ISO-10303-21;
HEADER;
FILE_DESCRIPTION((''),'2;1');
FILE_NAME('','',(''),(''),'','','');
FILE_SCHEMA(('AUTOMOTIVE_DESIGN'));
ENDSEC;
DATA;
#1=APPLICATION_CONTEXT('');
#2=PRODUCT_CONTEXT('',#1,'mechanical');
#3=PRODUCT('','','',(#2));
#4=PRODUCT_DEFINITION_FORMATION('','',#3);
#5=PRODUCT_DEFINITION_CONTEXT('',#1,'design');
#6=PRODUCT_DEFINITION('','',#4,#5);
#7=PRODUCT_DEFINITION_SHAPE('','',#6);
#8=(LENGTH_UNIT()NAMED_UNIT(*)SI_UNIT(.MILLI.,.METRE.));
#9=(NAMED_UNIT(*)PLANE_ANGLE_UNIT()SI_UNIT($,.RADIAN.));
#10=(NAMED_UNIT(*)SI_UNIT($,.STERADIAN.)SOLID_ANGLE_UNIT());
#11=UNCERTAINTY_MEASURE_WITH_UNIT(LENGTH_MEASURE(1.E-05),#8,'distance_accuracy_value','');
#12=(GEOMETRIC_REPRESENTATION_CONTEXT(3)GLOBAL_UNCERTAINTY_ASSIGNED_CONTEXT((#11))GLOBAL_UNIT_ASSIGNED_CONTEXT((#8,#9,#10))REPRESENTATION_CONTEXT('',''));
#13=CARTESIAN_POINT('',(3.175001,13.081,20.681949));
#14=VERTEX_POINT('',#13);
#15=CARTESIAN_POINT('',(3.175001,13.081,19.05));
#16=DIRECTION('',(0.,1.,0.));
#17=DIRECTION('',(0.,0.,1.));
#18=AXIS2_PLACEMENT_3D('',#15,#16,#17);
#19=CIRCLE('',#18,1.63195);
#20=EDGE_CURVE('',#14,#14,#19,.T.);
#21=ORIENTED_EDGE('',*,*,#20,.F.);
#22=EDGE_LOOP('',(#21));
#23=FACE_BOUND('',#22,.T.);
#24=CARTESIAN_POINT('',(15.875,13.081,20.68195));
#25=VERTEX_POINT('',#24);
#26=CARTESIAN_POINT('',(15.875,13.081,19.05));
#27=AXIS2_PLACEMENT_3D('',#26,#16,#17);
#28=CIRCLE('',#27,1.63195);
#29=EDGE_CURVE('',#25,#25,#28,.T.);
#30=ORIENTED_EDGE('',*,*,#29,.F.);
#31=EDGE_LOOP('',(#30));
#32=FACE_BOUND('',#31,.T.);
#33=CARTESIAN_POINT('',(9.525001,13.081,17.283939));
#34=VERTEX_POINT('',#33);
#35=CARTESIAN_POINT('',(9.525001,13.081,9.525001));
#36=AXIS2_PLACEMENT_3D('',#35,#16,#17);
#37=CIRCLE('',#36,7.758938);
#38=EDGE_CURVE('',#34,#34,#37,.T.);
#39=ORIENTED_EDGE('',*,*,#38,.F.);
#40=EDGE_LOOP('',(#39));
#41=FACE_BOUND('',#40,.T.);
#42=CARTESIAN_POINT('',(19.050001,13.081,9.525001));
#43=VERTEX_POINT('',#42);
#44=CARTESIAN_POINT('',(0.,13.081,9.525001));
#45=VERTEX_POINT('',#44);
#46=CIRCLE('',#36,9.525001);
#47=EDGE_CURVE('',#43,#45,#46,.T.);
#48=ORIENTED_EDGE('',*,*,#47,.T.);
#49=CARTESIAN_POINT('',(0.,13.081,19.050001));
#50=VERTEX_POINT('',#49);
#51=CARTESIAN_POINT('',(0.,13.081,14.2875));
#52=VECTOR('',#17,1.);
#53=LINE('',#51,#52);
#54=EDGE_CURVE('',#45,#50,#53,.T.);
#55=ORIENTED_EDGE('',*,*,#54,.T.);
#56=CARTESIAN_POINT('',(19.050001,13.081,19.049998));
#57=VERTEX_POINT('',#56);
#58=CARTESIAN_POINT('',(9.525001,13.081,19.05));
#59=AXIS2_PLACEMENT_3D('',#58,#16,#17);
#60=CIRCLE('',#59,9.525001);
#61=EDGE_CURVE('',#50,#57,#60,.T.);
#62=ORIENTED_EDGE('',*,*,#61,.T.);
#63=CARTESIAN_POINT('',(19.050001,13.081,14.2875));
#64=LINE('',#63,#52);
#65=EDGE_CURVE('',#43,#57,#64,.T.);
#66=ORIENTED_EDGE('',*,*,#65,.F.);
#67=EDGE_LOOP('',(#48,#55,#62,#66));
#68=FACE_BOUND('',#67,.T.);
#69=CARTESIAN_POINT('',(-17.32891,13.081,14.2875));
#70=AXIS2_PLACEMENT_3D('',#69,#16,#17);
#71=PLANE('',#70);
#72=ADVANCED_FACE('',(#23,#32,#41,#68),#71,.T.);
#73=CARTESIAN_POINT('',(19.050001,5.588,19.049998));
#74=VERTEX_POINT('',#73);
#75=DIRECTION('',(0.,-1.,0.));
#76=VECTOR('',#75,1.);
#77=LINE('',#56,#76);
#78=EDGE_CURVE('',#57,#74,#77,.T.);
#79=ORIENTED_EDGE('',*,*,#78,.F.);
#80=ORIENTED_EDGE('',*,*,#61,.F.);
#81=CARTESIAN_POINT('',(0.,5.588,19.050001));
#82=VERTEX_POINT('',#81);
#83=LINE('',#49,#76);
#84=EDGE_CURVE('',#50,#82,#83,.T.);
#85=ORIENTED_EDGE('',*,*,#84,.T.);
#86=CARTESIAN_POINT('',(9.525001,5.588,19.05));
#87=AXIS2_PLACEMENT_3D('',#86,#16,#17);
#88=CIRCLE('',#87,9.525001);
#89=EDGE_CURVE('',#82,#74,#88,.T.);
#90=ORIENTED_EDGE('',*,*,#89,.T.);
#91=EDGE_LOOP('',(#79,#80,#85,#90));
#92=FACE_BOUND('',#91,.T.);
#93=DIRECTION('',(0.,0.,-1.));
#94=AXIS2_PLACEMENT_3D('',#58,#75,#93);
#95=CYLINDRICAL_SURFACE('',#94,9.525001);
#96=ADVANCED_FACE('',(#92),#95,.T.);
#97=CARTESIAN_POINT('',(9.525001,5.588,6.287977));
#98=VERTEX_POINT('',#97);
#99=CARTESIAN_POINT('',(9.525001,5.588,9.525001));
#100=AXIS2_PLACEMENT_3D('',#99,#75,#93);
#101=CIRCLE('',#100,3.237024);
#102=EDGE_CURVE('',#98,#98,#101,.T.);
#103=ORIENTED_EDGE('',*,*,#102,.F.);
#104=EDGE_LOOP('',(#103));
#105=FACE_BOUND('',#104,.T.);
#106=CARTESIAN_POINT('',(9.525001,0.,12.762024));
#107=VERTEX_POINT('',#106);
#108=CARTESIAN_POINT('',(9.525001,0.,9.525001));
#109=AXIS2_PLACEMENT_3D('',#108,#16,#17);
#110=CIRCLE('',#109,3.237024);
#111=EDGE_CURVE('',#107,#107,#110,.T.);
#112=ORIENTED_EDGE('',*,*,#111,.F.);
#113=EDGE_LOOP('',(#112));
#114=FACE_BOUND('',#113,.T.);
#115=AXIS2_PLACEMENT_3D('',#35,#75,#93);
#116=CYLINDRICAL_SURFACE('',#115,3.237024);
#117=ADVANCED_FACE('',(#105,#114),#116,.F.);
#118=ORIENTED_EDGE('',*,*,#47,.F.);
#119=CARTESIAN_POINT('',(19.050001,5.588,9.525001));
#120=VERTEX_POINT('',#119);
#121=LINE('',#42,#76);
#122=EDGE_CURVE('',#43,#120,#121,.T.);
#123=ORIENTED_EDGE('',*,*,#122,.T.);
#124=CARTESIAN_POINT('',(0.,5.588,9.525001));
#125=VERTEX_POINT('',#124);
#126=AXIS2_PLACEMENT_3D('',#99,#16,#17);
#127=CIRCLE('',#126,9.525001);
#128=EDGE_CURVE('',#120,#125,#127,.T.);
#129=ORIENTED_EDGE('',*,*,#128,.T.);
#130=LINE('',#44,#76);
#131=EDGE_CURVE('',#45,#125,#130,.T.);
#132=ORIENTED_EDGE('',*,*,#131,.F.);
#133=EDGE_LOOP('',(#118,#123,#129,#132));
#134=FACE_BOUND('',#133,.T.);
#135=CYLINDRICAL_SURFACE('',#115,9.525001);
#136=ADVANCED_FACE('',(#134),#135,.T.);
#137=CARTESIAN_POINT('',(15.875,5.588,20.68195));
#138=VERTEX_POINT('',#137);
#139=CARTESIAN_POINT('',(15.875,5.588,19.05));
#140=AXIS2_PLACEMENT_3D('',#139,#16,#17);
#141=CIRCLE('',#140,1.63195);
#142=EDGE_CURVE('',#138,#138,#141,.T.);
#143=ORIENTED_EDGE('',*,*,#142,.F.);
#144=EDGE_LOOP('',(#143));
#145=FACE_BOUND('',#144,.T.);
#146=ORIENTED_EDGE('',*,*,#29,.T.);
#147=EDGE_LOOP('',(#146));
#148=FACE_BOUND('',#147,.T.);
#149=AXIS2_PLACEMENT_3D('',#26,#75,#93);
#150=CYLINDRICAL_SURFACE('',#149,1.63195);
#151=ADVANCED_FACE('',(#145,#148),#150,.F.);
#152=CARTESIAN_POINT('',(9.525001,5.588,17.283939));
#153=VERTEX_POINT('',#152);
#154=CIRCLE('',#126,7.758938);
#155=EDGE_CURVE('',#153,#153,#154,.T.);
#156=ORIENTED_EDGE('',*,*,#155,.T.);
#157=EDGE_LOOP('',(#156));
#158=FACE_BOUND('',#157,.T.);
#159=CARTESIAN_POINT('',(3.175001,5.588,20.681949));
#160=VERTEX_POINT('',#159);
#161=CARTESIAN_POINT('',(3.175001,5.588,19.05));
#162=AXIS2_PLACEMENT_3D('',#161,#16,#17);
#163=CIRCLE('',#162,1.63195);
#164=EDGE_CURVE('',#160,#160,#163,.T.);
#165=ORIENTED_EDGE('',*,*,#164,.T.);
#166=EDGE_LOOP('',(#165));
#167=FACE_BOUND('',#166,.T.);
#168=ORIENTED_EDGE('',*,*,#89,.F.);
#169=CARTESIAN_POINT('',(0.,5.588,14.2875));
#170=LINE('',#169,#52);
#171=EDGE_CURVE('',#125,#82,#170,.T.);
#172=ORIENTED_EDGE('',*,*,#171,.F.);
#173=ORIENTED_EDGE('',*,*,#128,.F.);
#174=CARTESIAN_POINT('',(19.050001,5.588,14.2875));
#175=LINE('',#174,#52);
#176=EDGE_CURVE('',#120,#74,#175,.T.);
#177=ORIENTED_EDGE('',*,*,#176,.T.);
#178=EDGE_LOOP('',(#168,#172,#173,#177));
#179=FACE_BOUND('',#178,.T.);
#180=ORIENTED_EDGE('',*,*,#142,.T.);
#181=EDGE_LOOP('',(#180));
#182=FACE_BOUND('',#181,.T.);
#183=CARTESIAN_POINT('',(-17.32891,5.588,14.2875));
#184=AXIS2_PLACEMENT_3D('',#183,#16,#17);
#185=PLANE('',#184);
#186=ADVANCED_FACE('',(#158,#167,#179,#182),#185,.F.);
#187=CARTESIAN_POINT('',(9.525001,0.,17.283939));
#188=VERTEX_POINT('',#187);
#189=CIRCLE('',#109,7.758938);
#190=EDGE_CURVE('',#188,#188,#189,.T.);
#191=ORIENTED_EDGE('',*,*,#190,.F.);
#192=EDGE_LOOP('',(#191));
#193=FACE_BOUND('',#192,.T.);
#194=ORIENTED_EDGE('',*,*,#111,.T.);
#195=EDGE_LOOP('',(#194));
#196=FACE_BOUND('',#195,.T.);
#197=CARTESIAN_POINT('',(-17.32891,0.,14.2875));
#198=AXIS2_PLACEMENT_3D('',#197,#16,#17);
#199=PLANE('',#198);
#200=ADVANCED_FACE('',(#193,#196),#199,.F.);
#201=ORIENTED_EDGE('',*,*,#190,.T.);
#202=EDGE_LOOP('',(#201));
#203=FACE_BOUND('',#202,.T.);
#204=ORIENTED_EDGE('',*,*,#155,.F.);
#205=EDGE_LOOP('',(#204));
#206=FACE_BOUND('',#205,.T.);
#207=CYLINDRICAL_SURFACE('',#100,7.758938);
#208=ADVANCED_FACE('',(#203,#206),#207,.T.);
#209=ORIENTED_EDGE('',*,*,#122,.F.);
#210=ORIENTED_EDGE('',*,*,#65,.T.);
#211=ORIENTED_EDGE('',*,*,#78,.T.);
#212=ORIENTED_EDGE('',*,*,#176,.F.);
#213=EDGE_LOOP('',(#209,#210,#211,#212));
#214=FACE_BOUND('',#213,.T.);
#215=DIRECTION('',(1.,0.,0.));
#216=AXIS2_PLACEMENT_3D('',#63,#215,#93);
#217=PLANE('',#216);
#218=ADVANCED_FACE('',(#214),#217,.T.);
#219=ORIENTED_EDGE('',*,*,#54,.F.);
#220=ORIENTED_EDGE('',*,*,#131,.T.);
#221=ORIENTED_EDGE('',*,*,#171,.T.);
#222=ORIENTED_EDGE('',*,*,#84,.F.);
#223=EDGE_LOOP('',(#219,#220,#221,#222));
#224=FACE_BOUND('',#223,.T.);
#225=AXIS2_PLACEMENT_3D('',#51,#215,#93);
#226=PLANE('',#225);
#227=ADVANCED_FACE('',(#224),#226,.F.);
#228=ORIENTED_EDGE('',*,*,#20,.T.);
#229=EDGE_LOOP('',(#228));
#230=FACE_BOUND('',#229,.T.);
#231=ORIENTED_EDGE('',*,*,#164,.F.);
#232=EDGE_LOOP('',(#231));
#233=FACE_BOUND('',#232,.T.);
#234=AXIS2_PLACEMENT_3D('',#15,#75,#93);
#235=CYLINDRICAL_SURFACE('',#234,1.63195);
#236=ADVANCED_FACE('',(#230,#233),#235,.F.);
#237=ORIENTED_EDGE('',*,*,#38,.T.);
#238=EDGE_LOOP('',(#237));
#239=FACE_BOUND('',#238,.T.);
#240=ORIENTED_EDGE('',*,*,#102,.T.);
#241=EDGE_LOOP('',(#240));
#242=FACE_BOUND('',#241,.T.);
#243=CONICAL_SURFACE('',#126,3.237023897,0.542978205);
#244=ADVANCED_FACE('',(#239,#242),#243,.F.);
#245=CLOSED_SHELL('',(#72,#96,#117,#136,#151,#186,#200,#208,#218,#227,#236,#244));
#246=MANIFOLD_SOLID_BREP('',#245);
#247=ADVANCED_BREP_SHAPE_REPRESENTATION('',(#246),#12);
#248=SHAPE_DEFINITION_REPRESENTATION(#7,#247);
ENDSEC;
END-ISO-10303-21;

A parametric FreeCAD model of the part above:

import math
import FreeCAD as App
import Part
import Sketcher
from FreeCAD import Vector
Q = App.Units.Quantity

doc = App.newDocument("Part")
body = doc.addObject("PartDesign::Body", "Body")

sketch1 = doc.addObject("Sketcher::SketchObject", "Sketch")
body.addObject(sketch1)
sketch1.AttachmentSupport = (doc.XZ_Plane, [""])
sketch1.MapMode = "FlatFace"
sketch1.addGeometry([
    Part.LineSegment(Vector(0, 9.525001, 0), Vector(0, 19.050001, 0)),
    Part.ArcOfCircle(Part.Circle(Vector(9.525001, 19.05, 0), Vector(0, 0, 1), 9.525001), math.radians(-0.000009), math.radians(179.999991)),
    Part.LineSegment(Vector(19.050001, 19.049998, 0), Vector(19.050001, 9.525001, 0)),
    Part.ArcOfCircle(Part.Circle(Vector(9.525001, 9.525001, 0), Vector(0, 0, 1), 9.525001), math.radians(180), math.radians(360)),
    Part.Circle(Vector(3.175001, 19.05, 0), Vector(0, 0, 1), 1.63195),
    Part.Circle(Vector(15.875, 19.05, 0), Vector(0, 0, 1), 1.63195),
    Part.Circle(Vector(9.525001, 9.525001, 0), Vector(0, 0, 1), 3.237024),
], False)
sketch1.addConstraint([
    Sketcher.Constraint("Tangent", 0, 2, 1, 2),
    Sketcher.Constraint("Tangent", 1, 1, 2, 1),
    Sketcher.Constraint("Tangent", 2, 2, 3, 2),
    Sketcher.Constraint("Tangent", 3, 1, 0, 1),
    Sketcher.Constraint("Vertical", 0),
    Sketcher.Constraint("Vertical", 2),
    Sketcher.Constraint("Coincident", 6, 3, 3, 3),
    Sketcher.Constraint("Equal", 4, 5),
    Sketcher.Constraint("PointOnObject", 0, 2, -2),
    Sketcher.Constraint("Horizontal", 1, 3, 4, 3),
    Sketcher.Constraint("Horizontal", 4, 3, 5, 3),
    Sketcher.Constraint("Radius", 1, Q("0.375 in")),
    Sketcher.Constraint("Diameter", 4, Q("0.1285 in")),
    Sketcher.Constraint("DistanceX", 4, 3, 5, 3, Q("0.5 in")),
    Sketcher.Constraint("DistanceY", 0, 1, 0, 2, Q("0.375 in")),
    Sketcher.Constraint("DistanceY", -1, 1, 1, 3, Q("0.75 in")),
    Sketcher.Constraint("DistanceX", 4, 3, 1, 3, Q("0.25 in")),
    Sketcher.Constraint("Diameter", 6, 6.474048),
])
pad1 = doc.addObject("PartDesign::Pad", "Pad")
body.addObject(pad1)
pad1.Profile = sketch1
pad1.Length = Q("0.515 in")
pad1.Reversed = True

sketch2 = doc.addObject("Sketcher::SketchObject", "Sketch001")
body.addObject(sketch2)
sketch2.AttachmentSupport = (doc.XZ_Plane, [""])
sketch2.MapMode = "FlatFace"
sketch2.addGeometry([
    Part.LineSegment(Vector(0, 9.525001, 0), Vector(0, 19.050001, 0)),
    Part.ArcOfCircle(Part.Circle(Vector(9.525001, 19.05, 0), Vector(0, 0, 1), 9.525001), math.radians(-0.000009), math.radians(179.999991)),
    Part.LineSegment(Vector(19.050001, 19.049998, 0), Vector(19.050001, 9.525001, 0)),
    Part.ArcOfCircle(Part.Circle(Vector(9.525001, 9.525001, 0), Vector(0, 0, 1), 9.525001), math.radians(180), math.radians(360)),
    Part.Circle(Vector(3.175001, 19.05, 0), Vector(0, 0, 1), 1.63195),
    Part.Circle(Vector(15.875, 19.05, 0), Vector(0, 0, 1), 1.63195),
    Part.Circle(Vector(9.525001, 9.525001, 0), Vector(0, 0, 1), 7.758938),
    Part.Circle(Vector(9.525001, 9.525001, 0), Vector(0, 0, 1), 3.237024),
], False)
sketch2.addConstraint([
    Sketcher.Constraint("Tangent", 0, 2, 1, 2),
    Sketcher.Constraint("Tangent", 1, 1, 2, 1),
    Sketcher.Constraint("Tangent", 2, 2, 3, 2),
    Sketcher.Constraint("Tangent", 3, 1, 0, 1),
    Sketcher.Constraint("Vertical", 0),
    Sketcher.Constraint("Vertical", 2),
    Sketcher.Constraint("Coincident", 6, 3, 3, 3),
    Sketcher.Constraint("Coincident", 7, 3, 3, 3),
    Sketcher.Constraint("Equal", 4, 5),
    Sketcher.Constraint("PointOnObject", 0, 2, -2),
    Sketcher.Constraint("Horizontal", 1, 3, 4, 3),
    Sketcher.Constraint("Horizontal", 4, 3, 5, 3),
    Sketcher.Constraint("Radius", 1, Q("0.375 in")),
    Sketcher.Constraint("Diameter", 4, Q("0.1285 in")),
    Sketcher.Constraint("DistanceX", 4, 3, 5, 3, Q("0.5 in")),
    Sketcher.Constraint("DistanceY", 0, 1, 0, 2, Q("0.375 in")),
    Sketcher.Constraint("DistanceY", -1, 1, 1, 3, Q("0.75 in")),
    Sketcher.Constraint("DistanceX", 4, 3, 1, 3, Q("0.25 in")),
    Sketcher.Constraint("Diameter", 6, 15.517877),
    Sketcher.Constraint("Diameter", 7, 6.474048),
])
pocket1 = doc.addObject("PartDesign::Pocket", "Pocket")
body.addObject(pocket1)
pocket1.Profile = sketch2
pocket1.Length = Q("0.22 in")

sketch3 = doc.addObject("Sketcher::SketchObject", "Sketch002")
body.addObject(sketch3)
sketch3.AttachmentSupport = (doc.XZ_Plane, [""])
sketch3.MapMode = "FlatFace"
sketch3.AttachmentOffset = App.Placement(Vector(0, 0, -0.515 * 25.4), App.Rotation())
sketch3.addGeometry(Part.Circle(Vector(9.525001, 9.525001, 0), Vector(0, 0, 1), 7.758938), False)
sketch3.addConstraint([
    Sketcher.Constraint("DistanceX", -1, 1, 0, 3, Q("0.375 in")),
    Sketcher.Constraint("DistanceY", -1, 1, 0, 3, Q("0.375 in")),
    Sketcher.Constraint("Diameter", 0, 15.517877),
])

sketch4 = doc.addObject("Sketcher::SketchObject", "Sketch003")
body.addObject(sketch4)
sketch4.AttachmentSupport = (doc.XZ_Plane, [""])
sketch4.MapMode = "FlatFace"
sketch4.AttachmentOffset = App.Placement(Vector(0, 0, -0.22 * 25.4), App.Rotation())
sketch4.addGeometry(Part.Circle(Vector(9.525001, 9.525001, 0), Vector(0, 0, 1), 3.237024), False)
sketch4.addConstraint([
    Sketcher.Constraint("DistanceX", -1, 1, 0, 3, Q("0.375 in")),
    Sketcher.Constraint("DistanceY", -1, 1, 0, 3, Q("0.375 in")),
    Sketcher.Constraint("Diameter", 0, 6.474048),
])

subtractiveloft = doc.addObject("PartDesign::SubtractiveLoft", "SubtractiveLoft")
body.addObject(subtractiveloft)
subtractiveloft.Profile = sketch3
subtractiveloft.Sections = [sketch4]

doc.recompute()
